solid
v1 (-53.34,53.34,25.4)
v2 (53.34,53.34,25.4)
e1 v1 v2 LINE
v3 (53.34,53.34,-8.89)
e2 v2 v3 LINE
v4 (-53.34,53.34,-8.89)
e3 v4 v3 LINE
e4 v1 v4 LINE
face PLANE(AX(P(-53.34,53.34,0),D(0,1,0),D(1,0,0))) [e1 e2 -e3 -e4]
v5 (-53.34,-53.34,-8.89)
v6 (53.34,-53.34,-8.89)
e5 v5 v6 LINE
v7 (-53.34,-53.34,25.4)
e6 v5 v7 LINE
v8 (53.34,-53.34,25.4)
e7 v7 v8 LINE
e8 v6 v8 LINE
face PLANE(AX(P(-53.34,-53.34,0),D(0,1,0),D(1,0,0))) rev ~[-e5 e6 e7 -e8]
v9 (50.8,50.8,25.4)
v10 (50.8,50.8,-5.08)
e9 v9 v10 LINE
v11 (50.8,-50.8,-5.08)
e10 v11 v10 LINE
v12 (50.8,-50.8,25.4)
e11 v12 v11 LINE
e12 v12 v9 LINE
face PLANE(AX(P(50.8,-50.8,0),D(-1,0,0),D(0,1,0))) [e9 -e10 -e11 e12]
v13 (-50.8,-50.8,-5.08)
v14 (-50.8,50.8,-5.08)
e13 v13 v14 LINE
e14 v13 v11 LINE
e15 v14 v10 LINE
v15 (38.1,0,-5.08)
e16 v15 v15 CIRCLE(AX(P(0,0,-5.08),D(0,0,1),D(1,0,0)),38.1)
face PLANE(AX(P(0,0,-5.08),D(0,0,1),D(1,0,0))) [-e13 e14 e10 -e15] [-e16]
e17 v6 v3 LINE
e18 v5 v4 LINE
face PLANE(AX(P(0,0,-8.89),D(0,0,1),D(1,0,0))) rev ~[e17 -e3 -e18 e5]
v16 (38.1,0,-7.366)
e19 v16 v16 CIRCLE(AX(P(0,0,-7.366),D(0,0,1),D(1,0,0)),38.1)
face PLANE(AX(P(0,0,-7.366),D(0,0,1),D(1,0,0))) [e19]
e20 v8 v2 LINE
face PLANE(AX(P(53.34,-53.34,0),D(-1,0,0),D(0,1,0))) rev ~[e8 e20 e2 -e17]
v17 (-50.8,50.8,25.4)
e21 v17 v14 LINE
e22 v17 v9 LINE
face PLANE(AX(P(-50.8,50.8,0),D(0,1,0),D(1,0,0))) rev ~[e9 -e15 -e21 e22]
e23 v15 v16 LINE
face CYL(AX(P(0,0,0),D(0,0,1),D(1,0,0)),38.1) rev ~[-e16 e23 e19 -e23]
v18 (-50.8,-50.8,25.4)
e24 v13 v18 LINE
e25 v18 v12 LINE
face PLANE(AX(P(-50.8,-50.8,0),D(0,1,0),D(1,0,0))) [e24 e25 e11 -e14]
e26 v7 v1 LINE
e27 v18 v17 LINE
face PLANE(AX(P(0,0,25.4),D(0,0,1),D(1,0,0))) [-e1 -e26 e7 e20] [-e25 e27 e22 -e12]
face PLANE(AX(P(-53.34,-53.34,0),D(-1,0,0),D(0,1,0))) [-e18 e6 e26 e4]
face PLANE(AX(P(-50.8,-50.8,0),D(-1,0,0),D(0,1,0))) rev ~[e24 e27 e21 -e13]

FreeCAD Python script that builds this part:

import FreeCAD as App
import Part
import Sketcher

V = App.Vector
Q = App.Units.Quantity

doc = App.newDocument("Part")
params = doc.addObject("Spreadsheet::Sheet", "Params")
for row, (alias, value) in enumerate([
    ("sketch1_width", "4.2 in"),
    ("pad1_length", "0.35 in"),
    ("sketch2_diameter", "3 in"),
    ("sketch2_width", "4 in"),
    ("pocket1_length", "0.2 in"),
    ("sketch3_diameter", "3 in"),
    ("pocket2_length", "0.29 in"),
    ("sketch4_width", "4 in"),
    ("sketch4_width2", "4.2 in"),
    ("pad2_length", "1 in"),
], start=1):
    params.set(f"A{row}", alias)
    params.set(f"B{row}", "=" + value)
    params.setAlias(f"B{row}", alias)

body = doc.addObject("PartDesign::Body", "Body")

sketch1 = body.newObject("Sketcher::SketchObject", "Sketch")
sketch1.AttachmentSupport = (doc.getObject("XY_Plane"), [""])
sketch1.MapMode = "FlatFace"
sketch1.addGeometry(Part.LineSegment(V(-53, 53, 0), V(-53, -53, 0)), False)
sketch1.addGeometry(Part.LineSegment(V(-53, -53, 0), V(53, -53, 0)), False)
sketch1.addGeometry(Part.LineSegment(V(53, -53, 0), V(53, 53, 0)), False)
sketch1.addGeometry(Part.LineSegment(V(53, 53, 0), V(-53, 53, 0)), False)
sketch1.addConstraint(Sketcher.Constraint("Coincident", 0, 2, 1, 1))
sketch1.addConstraint(Sketcher.Constraint("Coincident", 1, 2, 2, 1))
sketch1.addConstraint(Sketcher.Constraint("Coincident", 2, 2, 3, 1))
sketch1.addConstraint(Sketcher.Constraint("Coincident", 3, 2, 0, 1))
sketch1.addConstraint(Sketcher.Constraint("Vertical", 0))
sketch1.addConstraint(Sketcher.Constraint("Horizontal", 1))
sketch1.addConstraint(Sketcher.Constraint("Vertical", 2))
sketch1.addConstraint(Sketcher.Constraint("Horizontal", 3))
sketch1.addConstraint(Sketcher.Constraint("Symmetric", 0, 2, 2, 2, -1, 1))
sketch1.addConstraint(Sketcher.Constraint("Equal", 3, 0))
sketch1.addConstraint(Sketcher.Constraint("DistanceX", 1, 1, 1, 2, Q("4.2 in")))
sketch1.setExpression("Constraints[10]", "Params.sketch1_width")
pad1 = body.newObject("PartDesign::Pad", "Pad")
pad1.Profile = sketch1
pad1.setExpression("Length", "Params.pad1_length")
pad1.Reversed = True

sketch2 = body.newObject("Sketcher::SketchObject", "Sketch001")
sketch2.AttachmentSupport = (doc.getObject("XY_Plane"), [""])
sketch2.MapMode = "FlatFace"
sketch2.addGeometry(Part.LineSegment(V(-51, 51, 0), V(-51, -51, 0)), False)
sketch2.addGeometry(Part.LineSegment(V(-51, -51, 0), V(51, -51, 0)), False)
sketch2.addGeometry(Part.LineSegment(V(51, -51, 0), V(51, 51, 0)), False)
sketch2.addGeometry(Part.LineSegment(V(51, 51, 0), V(-51, 51, 0)), False)
sketch2.addGeometry(Part.Circle(V(0, 0, 0), V(0, 0, 1), 38), False)
sketch2.addConstraint(Sketcher.Constraint("Coincident", 0, 2, 1, 1))
sketch2.addConstraint(Sketcher.Constraint("Coincident", 1, 2, 2, 1))
sketch2.addConstraint(Sketcher.Constraint("Coincident", 2, 2, 3, 1))
sketch2.addConstraint(Sketcher.Constraint("Coincident", 3, 2, 0, 1))
sketch2.addConstraint(Sketcher.Constraint("Vertical", 0))
sketch2.addConstraint(Sketcher.Constraint("Horizontal", 1))
sketch2.addConstraint(Sketcher.Constraint("Vertical", 2))
sketch2.addConstraint(Sketcher.Constraint("Horizontal", 3))
sketch2.addConstraint(Sketcher.Constraint("Coincident", 4, 3, -1, 1))
sketch2.addConstraint(Sketcher.Constraint("Symmetric", 0, 2, 2, 2, -1, 1))
sketch2.addConstraint(Sketcher.Constraint("Equal", 3, 0))
sketch2.addConstraint(Sketcher.Constraint("Diameter", 4, Q("3 in")))
sketch2.addConstraint(Sketcher.Constraint("DistanceX", 1, 1, 1, 2, Q("4 in")))
sketch2.setExpression("Constraints[11]", "Params.sketch2_diameter")
sketch2.setExpression("Constraints[12]", "Params.sketch2_width")
pocket1 = body.newObject("PartDesign::Pocket", "Pocket")
pocket1.Profile = sketch2
pocket1.setExpression("Length", "Params.pocket1_length")

sketch3 = body.newObject("Sketcher::SketchObject", "Sketch002")
sketch3.AttachmentSupport = (doc.getObject("XY_Plane"), [""])
sketch3.MapMode = "FlatFace"
sketch3.addGeometry(Part.Circle(V(0, 0, 0), V(0, 0, 1), 38), False)
sketch3.addConstraint(Sketcher.Constraint("Coincident", 0, 3, -1, 1))
sketch3.addConstraint(Sketcher.Constraint("Diameter", 0, Q("3 in")))
sketch3.setExpression("Constraints[1]", "Params.sketch3_diameter")
pocket2 = body.newObject("PartDesign::Pocket", "Pocket001")
pocket2.Profile = sketch3
pocket2.setExpression("Length", "Params.pocket2_length")

sketch4 = body.newObject("Sketcher::SketchObject", "Sketch003")
sketch4.AttachmentSupport = (doc.getObject("XY_Plane"), [""])
sketch4.MapMode = "FlatFace"
sketch4.addGeometry(Part.LineSegment(V(-53, 53, 0), V(-53, -53, 0)), False)
sketch4.addGeometry(Part.LineSegment(V(-53, -53, 0), V(53, -53, 0)), False)
sketch4.addGeometry(Part.LineSegment(V(53, -53, 0), V(53, 53, 0)), False)
sketch4.addGeometry(Part.LineSegment(V(53, 53, 0), V(-53, 53, 0)), False)
sketch4.addGeometry(Part.LineSegment(V(51, -51, 0), V(-51, -51, 0)), False)
sketch4.addGeometry(Part.LineSegment(V(-51, -51, 0), V(-51, 51, 0)), False)
sketch4.addGeometry(Part.LineSegment(V(-51, 51, 0), V(51, 51, 0)), False)
sketch4.addGeometry(Part.LineSegment(V(51, 51, 0), V(51, -51, 0)), False)
sketch4.addConstraint(Sketcher.Constraint("Coincident", 0, 2, 1, 1))
sketch4.addConstraint(Sketcher.Constraint("Coincident", 1, 2, 2, 1))
sketch4.addConstraint(Sketcher.Constraint("Coincident", 2, 2, 3, 1))
sketch4.addConstraint(Sketcher.Constraint("Coincident", 3, 2, 0, 1))
sketch4.addConstraint(Sketcher.Constraint("Coincident", 4, 2, 5, 1))
sketch4.addConstraint(Sketcher.Constraint("Coincident", 5, 2, 6, 1))
sketch4.addConstraint(Sketcher.Constraint("Coincident", 6, 2, 7, 1))
sketch4.addConstraint(Sketcher.Constraint("Coincident", 7, 2, 4, 1))
sketch4.addConstraint(Sketcher.Constraint("Vertical", 0))
sketch4.addConstraint(Sketcher.Constraint("Horizontal", 1))
sketch4.addConstraint(Sketcher.Constraint("Vertical", 2))
sketch4.addConstraint(Sketcher.Constraint("Horizontal", 3))
sketch4.addConstraint(Sketcher.Constraint("Horizontal", 4))
sketch4.addConstraint(Sketcher.Constraint("Vertical", 5))
sketch4.addConstraint(Sketcher.Constraint("Horizontal", 6))
sketch4.addConstraint(Sketcher.Constraint("Vertical", 7))
sketch4.addConstraint(Sketcher.Constraint("Symmetric", 0, 2, 2, 2, -1, 1))
sketch4.addConstraint(Sketcher.Constraint("Symmetric", 4, 2, 6, 2, -1, 1))
sketch4.addConstraint(Sketcher.Constraint("Equal", 3, 0))
sketch4.addConstraint(Sketcher.Constraint("Equal", 6, 5))
sketch4.addConstraint(Sketcher.Constraint("DistanceX", 4, 2, 4, 1, Q("4 in")))
sketch4.addConstraint(Sketcher.Constraint("DistanceX", 1, 1, 1, 2, Q("4.2 in")))
sketch4.setExpression("Constraints[20]", "Params.sketch4_width")
sketch4.setExpression("Constraints[21]", "Params.sketch4_width2")
pad2 = body.newObject("PartDesign::Pad", "Pad001")
pad2.Profile = sketch4
pad2.setExpression("Length", "Params.pad2_length")

doc.recompute()
